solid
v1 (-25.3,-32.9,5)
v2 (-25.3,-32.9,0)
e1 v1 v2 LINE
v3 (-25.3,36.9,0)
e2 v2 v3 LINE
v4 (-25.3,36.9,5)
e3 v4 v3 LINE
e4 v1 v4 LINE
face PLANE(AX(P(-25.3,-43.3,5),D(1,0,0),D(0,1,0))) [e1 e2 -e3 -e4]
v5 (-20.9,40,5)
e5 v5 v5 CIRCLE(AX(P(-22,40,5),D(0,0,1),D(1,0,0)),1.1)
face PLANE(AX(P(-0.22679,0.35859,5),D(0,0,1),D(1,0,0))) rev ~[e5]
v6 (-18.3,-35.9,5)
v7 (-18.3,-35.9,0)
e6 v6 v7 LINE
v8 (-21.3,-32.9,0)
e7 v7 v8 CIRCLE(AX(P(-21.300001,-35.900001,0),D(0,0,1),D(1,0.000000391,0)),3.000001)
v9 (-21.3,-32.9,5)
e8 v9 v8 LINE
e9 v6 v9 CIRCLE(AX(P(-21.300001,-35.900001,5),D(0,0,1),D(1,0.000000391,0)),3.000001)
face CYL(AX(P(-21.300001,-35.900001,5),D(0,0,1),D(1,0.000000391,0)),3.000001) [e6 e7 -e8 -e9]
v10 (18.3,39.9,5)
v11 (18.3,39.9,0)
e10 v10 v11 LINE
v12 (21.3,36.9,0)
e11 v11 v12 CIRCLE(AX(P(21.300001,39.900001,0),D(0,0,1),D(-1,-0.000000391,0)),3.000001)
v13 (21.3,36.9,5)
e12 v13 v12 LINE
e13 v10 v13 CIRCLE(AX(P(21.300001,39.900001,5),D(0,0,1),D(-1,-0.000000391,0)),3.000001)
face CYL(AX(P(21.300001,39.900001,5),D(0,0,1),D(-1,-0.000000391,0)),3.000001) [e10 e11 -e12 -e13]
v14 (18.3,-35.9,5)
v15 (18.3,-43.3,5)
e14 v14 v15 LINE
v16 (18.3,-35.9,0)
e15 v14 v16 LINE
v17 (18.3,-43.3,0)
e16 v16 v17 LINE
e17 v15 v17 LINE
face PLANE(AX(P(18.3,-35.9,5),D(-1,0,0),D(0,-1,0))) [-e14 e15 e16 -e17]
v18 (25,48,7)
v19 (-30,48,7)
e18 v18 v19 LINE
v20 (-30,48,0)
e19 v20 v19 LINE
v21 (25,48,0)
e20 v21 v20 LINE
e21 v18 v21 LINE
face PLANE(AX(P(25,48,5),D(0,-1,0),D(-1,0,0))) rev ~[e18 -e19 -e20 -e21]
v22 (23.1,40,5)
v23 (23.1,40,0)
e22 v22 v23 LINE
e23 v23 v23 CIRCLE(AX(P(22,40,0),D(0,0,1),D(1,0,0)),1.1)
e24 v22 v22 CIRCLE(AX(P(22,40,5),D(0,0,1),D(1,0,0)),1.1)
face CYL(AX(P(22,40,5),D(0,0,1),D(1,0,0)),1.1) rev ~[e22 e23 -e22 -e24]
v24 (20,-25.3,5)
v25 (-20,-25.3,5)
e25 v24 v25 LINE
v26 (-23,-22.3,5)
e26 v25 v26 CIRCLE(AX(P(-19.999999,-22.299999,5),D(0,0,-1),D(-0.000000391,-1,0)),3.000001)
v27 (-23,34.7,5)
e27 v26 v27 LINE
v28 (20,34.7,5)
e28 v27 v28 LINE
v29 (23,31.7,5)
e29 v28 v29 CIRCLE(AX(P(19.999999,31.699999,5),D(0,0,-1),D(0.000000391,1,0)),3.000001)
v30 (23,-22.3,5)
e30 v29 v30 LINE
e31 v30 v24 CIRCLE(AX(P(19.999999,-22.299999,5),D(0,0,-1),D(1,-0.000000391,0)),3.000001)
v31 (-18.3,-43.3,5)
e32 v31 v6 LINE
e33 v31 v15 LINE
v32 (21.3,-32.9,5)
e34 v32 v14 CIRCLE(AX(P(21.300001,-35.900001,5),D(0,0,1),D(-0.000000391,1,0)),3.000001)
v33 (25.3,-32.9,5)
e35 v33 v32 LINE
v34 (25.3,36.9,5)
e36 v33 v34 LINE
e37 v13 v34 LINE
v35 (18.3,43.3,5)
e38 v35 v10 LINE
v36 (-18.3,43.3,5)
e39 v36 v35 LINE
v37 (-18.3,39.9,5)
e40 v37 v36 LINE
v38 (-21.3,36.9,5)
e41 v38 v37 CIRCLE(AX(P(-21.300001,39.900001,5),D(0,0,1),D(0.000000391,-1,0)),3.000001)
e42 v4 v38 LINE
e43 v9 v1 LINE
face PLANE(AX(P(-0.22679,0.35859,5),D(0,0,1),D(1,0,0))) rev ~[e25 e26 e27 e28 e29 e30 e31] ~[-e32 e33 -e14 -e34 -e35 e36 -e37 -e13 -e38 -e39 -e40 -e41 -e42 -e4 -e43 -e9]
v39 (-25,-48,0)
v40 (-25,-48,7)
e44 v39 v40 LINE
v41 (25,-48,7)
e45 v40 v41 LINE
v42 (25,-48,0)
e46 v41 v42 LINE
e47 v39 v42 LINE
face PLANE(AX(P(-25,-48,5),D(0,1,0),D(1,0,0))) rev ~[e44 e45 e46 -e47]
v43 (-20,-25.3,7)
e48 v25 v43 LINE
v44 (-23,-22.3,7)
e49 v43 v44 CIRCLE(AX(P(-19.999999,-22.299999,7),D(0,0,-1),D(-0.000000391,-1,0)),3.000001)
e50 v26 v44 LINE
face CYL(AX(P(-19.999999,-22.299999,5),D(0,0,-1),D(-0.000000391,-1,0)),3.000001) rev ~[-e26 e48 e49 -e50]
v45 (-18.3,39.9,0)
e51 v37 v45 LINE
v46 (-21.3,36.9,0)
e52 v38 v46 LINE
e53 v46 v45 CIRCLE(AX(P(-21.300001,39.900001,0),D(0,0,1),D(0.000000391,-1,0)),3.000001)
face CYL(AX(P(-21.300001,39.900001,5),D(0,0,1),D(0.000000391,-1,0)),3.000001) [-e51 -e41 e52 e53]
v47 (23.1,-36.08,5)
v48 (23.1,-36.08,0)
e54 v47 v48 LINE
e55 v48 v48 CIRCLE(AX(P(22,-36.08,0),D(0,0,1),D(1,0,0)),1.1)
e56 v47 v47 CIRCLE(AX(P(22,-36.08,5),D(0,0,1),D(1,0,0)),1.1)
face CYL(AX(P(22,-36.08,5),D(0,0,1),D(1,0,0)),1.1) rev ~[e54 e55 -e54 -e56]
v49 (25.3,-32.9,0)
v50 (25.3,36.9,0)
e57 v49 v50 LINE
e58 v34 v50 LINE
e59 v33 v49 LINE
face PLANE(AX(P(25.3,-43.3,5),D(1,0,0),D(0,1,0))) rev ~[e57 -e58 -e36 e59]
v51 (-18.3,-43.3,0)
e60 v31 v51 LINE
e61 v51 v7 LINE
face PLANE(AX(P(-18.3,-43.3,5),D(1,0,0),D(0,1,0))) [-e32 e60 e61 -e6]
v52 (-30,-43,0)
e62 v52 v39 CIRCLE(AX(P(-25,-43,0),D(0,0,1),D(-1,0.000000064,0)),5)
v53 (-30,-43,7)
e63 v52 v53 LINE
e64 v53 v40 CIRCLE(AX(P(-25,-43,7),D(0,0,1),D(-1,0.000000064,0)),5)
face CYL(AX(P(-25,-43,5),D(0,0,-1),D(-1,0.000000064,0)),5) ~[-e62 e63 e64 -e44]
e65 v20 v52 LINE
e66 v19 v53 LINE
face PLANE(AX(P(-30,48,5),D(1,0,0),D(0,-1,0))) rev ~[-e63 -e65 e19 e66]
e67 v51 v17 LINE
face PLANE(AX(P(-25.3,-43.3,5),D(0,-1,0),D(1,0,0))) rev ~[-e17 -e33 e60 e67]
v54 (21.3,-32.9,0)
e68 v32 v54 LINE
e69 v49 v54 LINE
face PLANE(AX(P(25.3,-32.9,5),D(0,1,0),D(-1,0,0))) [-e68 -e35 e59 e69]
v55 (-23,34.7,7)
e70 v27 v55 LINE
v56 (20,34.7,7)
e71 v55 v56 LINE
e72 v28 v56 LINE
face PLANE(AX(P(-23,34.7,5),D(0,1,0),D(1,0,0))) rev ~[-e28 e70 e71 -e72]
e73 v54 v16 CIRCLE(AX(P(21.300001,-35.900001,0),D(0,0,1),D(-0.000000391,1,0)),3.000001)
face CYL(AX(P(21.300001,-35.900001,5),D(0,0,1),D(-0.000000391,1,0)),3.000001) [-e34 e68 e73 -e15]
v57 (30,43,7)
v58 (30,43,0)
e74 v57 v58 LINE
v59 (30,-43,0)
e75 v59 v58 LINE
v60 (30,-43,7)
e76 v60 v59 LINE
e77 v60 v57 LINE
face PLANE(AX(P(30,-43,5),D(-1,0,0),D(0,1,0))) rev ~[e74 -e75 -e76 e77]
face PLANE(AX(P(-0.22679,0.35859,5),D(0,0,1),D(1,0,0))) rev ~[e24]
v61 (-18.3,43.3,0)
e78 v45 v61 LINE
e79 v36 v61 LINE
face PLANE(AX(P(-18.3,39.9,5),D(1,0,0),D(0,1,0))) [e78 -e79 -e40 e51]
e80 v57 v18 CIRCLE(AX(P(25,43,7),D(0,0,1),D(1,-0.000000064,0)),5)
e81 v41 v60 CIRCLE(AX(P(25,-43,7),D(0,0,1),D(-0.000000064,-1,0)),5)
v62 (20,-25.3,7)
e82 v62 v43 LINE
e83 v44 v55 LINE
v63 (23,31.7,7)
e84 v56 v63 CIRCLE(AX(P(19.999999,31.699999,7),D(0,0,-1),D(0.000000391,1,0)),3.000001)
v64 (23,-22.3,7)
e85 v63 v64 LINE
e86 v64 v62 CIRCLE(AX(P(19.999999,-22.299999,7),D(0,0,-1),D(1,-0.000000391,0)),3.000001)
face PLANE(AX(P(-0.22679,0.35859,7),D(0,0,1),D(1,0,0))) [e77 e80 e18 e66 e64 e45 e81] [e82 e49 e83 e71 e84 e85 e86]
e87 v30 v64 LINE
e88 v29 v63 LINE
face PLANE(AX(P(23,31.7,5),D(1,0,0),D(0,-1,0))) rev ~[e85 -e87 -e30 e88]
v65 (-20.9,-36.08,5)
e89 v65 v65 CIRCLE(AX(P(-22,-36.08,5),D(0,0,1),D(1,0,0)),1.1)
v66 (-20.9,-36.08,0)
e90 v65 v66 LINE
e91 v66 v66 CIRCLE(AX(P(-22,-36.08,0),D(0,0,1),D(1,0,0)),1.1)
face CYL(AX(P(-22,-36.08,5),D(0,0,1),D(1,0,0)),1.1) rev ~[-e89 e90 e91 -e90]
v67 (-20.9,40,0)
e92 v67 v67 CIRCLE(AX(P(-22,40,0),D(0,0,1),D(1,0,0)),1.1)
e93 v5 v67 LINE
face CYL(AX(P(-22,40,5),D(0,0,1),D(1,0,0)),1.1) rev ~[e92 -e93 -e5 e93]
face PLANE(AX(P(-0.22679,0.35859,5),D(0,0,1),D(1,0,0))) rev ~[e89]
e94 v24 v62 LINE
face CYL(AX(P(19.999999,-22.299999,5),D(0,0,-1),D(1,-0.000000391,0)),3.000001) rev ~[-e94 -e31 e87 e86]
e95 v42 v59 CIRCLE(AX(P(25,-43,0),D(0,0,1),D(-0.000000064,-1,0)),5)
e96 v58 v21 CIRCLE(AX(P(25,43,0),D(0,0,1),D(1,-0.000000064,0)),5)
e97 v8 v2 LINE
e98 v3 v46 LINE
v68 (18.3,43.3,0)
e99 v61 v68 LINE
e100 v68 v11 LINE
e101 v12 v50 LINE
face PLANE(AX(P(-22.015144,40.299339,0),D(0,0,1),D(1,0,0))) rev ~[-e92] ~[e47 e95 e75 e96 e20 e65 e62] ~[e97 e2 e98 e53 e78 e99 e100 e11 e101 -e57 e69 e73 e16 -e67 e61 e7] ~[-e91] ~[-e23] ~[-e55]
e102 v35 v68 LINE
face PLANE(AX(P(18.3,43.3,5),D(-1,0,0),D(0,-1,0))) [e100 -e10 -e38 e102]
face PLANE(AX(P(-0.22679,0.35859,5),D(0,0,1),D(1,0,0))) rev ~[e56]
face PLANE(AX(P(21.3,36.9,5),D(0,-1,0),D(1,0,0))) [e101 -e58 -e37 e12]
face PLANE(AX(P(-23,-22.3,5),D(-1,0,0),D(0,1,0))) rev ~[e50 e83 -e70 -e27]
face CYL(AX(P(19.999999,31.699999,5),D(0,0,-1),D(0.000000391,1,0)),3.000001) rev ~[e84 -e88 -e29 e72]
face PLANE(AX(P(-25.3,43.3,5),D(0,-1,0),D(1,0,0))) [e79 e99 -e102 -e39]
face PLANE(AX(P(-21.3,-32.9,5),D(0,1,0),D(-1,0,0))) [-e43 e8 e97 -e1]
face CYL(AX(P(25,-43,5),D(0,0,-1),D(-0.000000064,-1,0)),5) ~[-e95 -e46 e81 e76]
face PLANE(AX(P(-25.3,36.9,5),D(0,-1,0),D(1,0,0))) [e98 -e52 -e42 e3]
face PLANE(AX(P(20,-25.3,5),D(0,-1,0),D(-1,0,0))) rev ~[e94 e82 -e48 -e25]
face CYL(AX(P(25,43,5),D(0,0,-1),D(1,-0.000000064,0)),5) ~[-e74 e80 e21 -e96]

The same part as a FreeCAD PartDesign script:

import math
import FreeCAD as App
import Part
import Sketcher
from FreeCAD import Vector


def add_polygon(sketch, points):
    """Adds a closed chain of lines whose ends are joined by coincident constraints."""
    first, n = sketch.GeometryCount, len(points)
    for a, b in zip(points, points[1:] + points[:1]):
        sketch.addGeometry(Part.LineSegment(App.Vector(*a, 0), App.Vector(*b, 0)), False)
    for i in range(n):
        sketch.addConstraint(Sketcher.Constraint("Coincident", first + i, 2, first + (i + 1) % n, 1))

doc = App.newDocument("Part")
body = doc.addObject("PartDesign::Body", "Body")

sketch1 = body.newObject("Sketcher::SketchObject", "Sketch")
sketch1.AttachmentSupport = (doc.getObject("XY_Plane"), [""])
sketch1.MapMode = "FlatFace"
sketch1.addGeometry([
    Part.LineSegment(Vector(-25, -48, 0), Vector(25, -48, 0)),
    Part.ArcOfCircle(Part.Circle(Vector(25, -43, 0), Vector(0, 0, 1), 5), math.radians(-90.000004), math.radians(0.000004)),
    Part.LineSegment(Vector(30, -43, 0), Vector(30, 43, 0)),
    Part.ArcOfCircle(Part.Circle(Vector(25, 43, 0), Vector(0, 0, 1), 5), math.radians(-0.000004), math.radians(90.000004)),
    Part.LineSegment(Vector(25, 48, 0), Vector(-30, 48, 0)),
    Part.LineSegment(Vector(-30, 48, 0), Vector(-30, -43, 0)),
    Part.ArcOfCircle(Part.Circle(Vector(-25, -43, 0), Vector(0, 0, 1), 5), math.radians(179.999996), math.radians(270.000004)),
    Part.Circle(Vector(-22, -36.08, 0), Vector(0, 0, 1), 1.5),
    Part.Circle(Vector(22, -36.08, 0), Vector(0, 0, 1), 1.5),
    Part.Circle(Vector(-22, 40, 0), Vector(0, 0, 1), 1.5),
    Part.Circle(Vector(22, 40, 0), Vector(0, 0, 1), 1.5),
], False)
sketch1.addConstraint([
    Sketcher.Constraint("Tangent", 0, 2, 1, 1),
    Sketcher.Constraint("Tangent", 1, 2, 2, 1),
    Sketcher.Constraint("Tangent", 2, 2, 3, 1),
    Sketcher.Constraint("Tangent", 3, 2, 4, 1),
    Sketcher.Constraint("Coincident", 4, 2, 5, 1),
    Sketcher.Constraint("Tangent", 5, 2, 6, 1),
    Sketcher.Constraint("Tangent", 6, 2, 0, 1),
    Sketcher.Constraint("Horizontal", 0),
    Sketcher.Constraint("Vertical", 2),
    Sketcher.Constraint("Horizontal", 4),
    Sketcher.Constraint("Vertical", 5),
    Sketcher.Constraint("Equal", 1, 3),
    Sketcher.Constraint("Equal", 3, 6),
    Sketcher.Constraint("Equal", 7, 8),
    Sketcher.Constraint("Equal", 8, 9),
    Sketcher.Constraint("Equal", 9, 10),
    Sketcher.Constraint("Symmetric", 3, 3, 6, 3, -1, 1),
    Sketcher.Constraint("Symmetric", 7, 3, 8, 3, -2),
    Sketcher.Constraint("Symmetric", 9, 3, 10, 3, -2),
    Sketcher.Constraint("Vertical", 7, 3, 9, 3),
    Sketcher.Constraint("Diameter", 7, 3.0),
    Sketcher.Constraint("Radius", 1, 5.0),
    Sketcher.Constraint("DistanceX", 0, 1, 0, 2, 50.0),
    Sketcher.Constraint("DistanceY", 2, 1, 2, 2, 86.0),
    Sketcher.Constraint("DistanceX", 7, 3, -1, 1, 22.0),
    Sketcher.Constraint("DistanceY", -1, 1, 9, 3, 40.0),
    Sketcher.Constraint("DistanceY", 7, 3, -1, 1, 36.08),
])
pad1 = body.newObject("PartDesign::Pad", "Pad")
pad1.Profile = sketch1
pad1.Length = 5

sketch2 = body.newObject("Sketcher::SketchObject", "Sketch001")
sketch2.AttachmentSupport = (doc.getObject("XY_Plane"), [""])
sketch2.MapMode = "FlatFace"
sketch2.AttachmentOffset = App.Placement(Vector(0, 0, 5), App.Rotation())
add_polygon(sketch2, [(-25.3, 43.3), (-25.3, -43.3), (25.3, -43.3), (25.3, 43.3)])
sketch2.addGeometry(Part.Circle(Vector(-22, -36.08, 0), Vector(0, 0, 1), 1.5), False)
sketch2.addGeometry(Part.Circle(Vector(22, -36.08, 0), Vector(0, 0, 1), 1.5), False)
sketch2.addGeometry(Part.Circle(Vector(-22, 40, 0), Vector(0, 0, 1), 1.5), False)
sketch2.addGeometry(Part.Circle(Vector(22, 40, 0), Vector(0, 0, 1), 1.5), False)
sketch2.addConstraint([
    Sketcher.Constraint("Vertical", 0),
    Sketcher.Constraint("Horizontal", 1),
    Sketcher.Constraint("Vertical", 2),
    Sketcher.Constraint("Horizontal", 3),
    Sketcher.Constraint("Equal", 4, 5),
    Sketcher.Constraint("Equal", 5, 6),
    Sketcher.Constraint("Equal", 6, 7),
    Sketcher.Constraint("Symmetric", 0, 2, 2, 2, -1, 1),
    Sketcher.Constraint("Symmetric", 4, 3, 5, 3, -2),
    Sketcher.Constraint("Symmetric", 6, 3, 7, 3, -2),
    Sketcher.Constraint("Vertical", 4, 3, 6, 3),
    Sketcher.Constraint("Diameter", 4, 3.0),
    Sketcher.Constraint("DistanceX", 1, 1, 1, 2, 50.6),
    Sketcher.Constraint("DistanceY", 0, 2, 0, 1, 86.6),
    Sketcher.Constraint("DistanceX", 4, 3, -1, 1, 22.0),
    Sketcher.Constraint("DistanceY", -1, 1, 6, 3, 40.0),
    Sketcher.Constraint("DistanceY", 4, 3, -1, 1, 36.08),
])
pocket1 = body.newObject("PartDesign::Pocket", "Pocket")
pocket1.Profile = sketch2
pocket1.Length = 5

sketch3 = body.newObject("Sketcher::SketchObject", "Sketch002")
sketch3.AttachmentSupport = (doc.getObject("XY_Plane"), [""])
sketch3.MapMode = "FlatFace"
sketch3.AttachmentOffset = App.Placement(Vector(0, 0, 5), App.Rotation())
sketch3.addGeometry([
    Part.LineSegment(Vector(-18.3, 43.3, 0), Vector(-25.3, 43.3, 0)),
    Part.LineSegment(Vector(-25.3, 43.3, 0), Vector(-25.3, 36.9, 0)),
    Part.LineSegment(Vector(-25.3, 36.9, 0), Vector(-21.3, 36.9, 0)),
    Part.ArcOfCircle(Part.Circle(Vector(-21.300001, 39.900001, 0), Vector(0, 0, 1), 3.000001), math.radians(-89.999978), math.radians(-0.000022)),
    Part.LineSegment(Vector(-18.3, 39.9, 0), Vector(-18.3, 43.3, 0)),
    Part.Circle(Vector(-22, 40, 0), Vector(0, 0, 1), 1.1),
    Part.LineSegment(Vector(25.3, 36.9, 0), Vector(25.3, 43.3, 0)),
    Part.LineSegment(Vector(25.3, 43.3, 0), Vector(18.3, 43.3, 0)),
    Part.LineSegment(Vector(18.3, 43.3, 0), Vector(18.3, 39.9, 0)),
    Part.ArcOfCircle(Part.Circle(Vector(21.300001, 39.900001, 0), Vector(0, 0, 1), 3.000001), math.radians(-179.999978), math.radians(-90.000022)),
    Part.LineSegment(Vector(21.3, 36.9, 0), Vector(25.3, 36.9, 0)),
    Part.Circle(Vector(22, 40, 0), Vector(0, 0, 1), 1.1),
    Part.LineSegment(Vector(18.3, -43.3, 0), Vector(25.3, -43.3, 0)),
    Part.LineSegment(Vector(25.3, -43.3, 0), Vector(25.3, -32.9, 0)),
    Part.LineSegment(Vector(25.3, -32.9, 0), Vector(21.3, -32.9, 0)),
    Part.ArcOfCircle(Part.Circle(Vector(21.300001, -35.900001, 0), Vector(0, 0, 1), 3.000001), math.radians(90.000022), math.radians(179.999978)),
    Part.LineSegment(Vector(18.3, -35.9, 0), Vector(18.3, -43.3, 0)),
    Part.Circle(Vector(22, -36.08, 0), Vector(0, 0, 1), 1.1),
    Part.LineSegment(Vector(-25.3, -32.9, 0), Vector(-25.3, -43.3, 0)),
    Part.LineSegment(Vector(-25.3, -43.3, 0), Vector(-18.3, -43.3, 0)),
    Part.LineSegment(Vector(-18.3, -43.3, 0), Vector(-18.3, -35.9, 0)),
    Part.ArcOfCircle(Part.Circle(Vector(-21.300001, -35.900001, 0), Vector(0, 0, 1), 3.000001), math.radians(0.000022), math.radians(89.999978)),
    Part.LineSegment(Vector(-21.3, -32.9, 0), Vector(-25.3, -32.9, 0)),
    Part.Circle(Vector(-22, -36.08, 0), Vector(0, 0, 1), 1.1),
], False)
sketch3.addConstraint([
    Sketcher.Constraint("Coincident", 0, 2, 1, 1),
    Sketcher.Constraint("Coincident", 1, 2, 2, 1),
    Sketcher.Constraint("Tangent", 2, 2, 3, 1),
    Sketcher.Constraint("Tangent", 3, 2, 4, 1),
    Sketcher.Constraint("Coincident", 4, 2, 0, 1),
    Sketcher.Constraint("Coincident", 6, 2, 7, 1),
    Sketcher.Constraint("Coincident", 7, 2, 8, 1),
    Sketcher.Constraint("Tangent", 8, 2, 9, 1),
    Sketcher.Constraint("Tangent", 9, 2, 10, 1),
    Sketcher.Constraint("Coincident", 10, 2, 6, 1),
    Sketcher.Constraint("Coincident", 12, 2, 13, 1),
    Sketcher.Constraint("Coincident", 13, 2, 14, 1),
    Sketcher.Constraint("Tangent", 14, 2, 15, 1),
    Sketcher.Constraint("Tangent", 15, 2, 16, 1),
    Sketcher.Constraint("Coincident", 16, 2, 12, 1),
    Sketcher.Constraint("Coincident", 18, 2, 19, 1),
    Sketcher.Constraint("Coincident", 19, 2, 20, 1),
    Sketcher.Constraint("Tangent", 20, 2, 21, 1),
    Sketcher.Constraint("Tangent", 21, 2, 22, 1),
    Sketcher.Constraint("Coincident", 22, 2, 18, 1),
    Sketcher.Constraint("Horizontal", 0),
    Sketcher.Constraint("Vertical", 1),
    Sketcher.Constraint("Horizontal", 2),
    Sketcher.Constraint("Vertical", 4),
    Sketcher.Constraint("Vertical", 6),
    Sketcher.Constraint("Horizontal", 7),
    Sketcher.Constraint("Vertical", 8),
    Sketcher.Constraint("Horizontal", 10),
    Sketcher.Constraint("Horizontal", 12),
    Sketcher.Constraint("Vertical", 13),
    Sketcher.Constraint("Horizontal", 14),
    Sketcher.Constraint("Vertical", 16),
    Sketcher.Constraint("Vertical", 18),
    Sketcher.Constraint("Horizontal", 19),
    Sketcher.Constraint("Vertical", 20),
    Sketcher.Constraint("Horizontal", 22),
    Sketcher.Constraint("Equal", 3, 9),
    Sketcher.Constraint("Equal", 5, 11),
    Sketcher.Constraint("Equal", 9, 15),
    Sketcher.Constraint("Equal", 11, 17),
    Sketcher.Constraint("Equal", 15, 21),
    Sketcher.Constraint("Equal", 17, 23),
    Sketcher.Constraint("Symmetric", 0, 2, 12, 2, -1, 1),
    Sketcher.Constraint("Symmetric", 6, 2, 18, 2, -1, 1),
    Sketcher.Constraint("Symmetric", 3, 3, 9, 3, -2),
    Sketcher.Constraint("Symmetric", 5, 3, 11, 3, -2),
    Sketcher.Constraint("Symmetric", 15, 3, 21, 3, -2),
    Sketcher.Constraint("Symmetric", 17, 3, 23, 3, -2),
    Sketcher.Constraint("Symmetric", 0, 2, 6, 2, -2),
    Sketcher.Constraint("Vertical", 9, 3, 15, 3),
    Sketcher.Constraint("Vertical", 11, 3, 17, 3),
    Sketcher.Constraint("Radius", 3, 3.000001),
    Sketcher.Constraint("Diameter", 5, 2.2),
    Sketcher.Constraint("DistanceX", 0, 2, 0, 1, 7.0),
    Sketcher.Constraint("DistanceY", 1, 2, 1, 1, 6.4),
    Sketcher.Constraint("DistanceY", 13, 1, 13, 2, 10.4),
    Sketcher.Constraint("DistanceX", 5, 3, -1, 1, 22.0),
    Sketcher.Constraint("DistanceY", -1, 1, 5, 3, 40.0),
    Sketcher.Constraint("DistanceX", 3, 3, -1, 1, 21.300001),
    Sketcher.Constraint("DistanceY", -1, 1, 3, 3, 39.900001),
    Sketcher.Constraint("DistanceY", 17, 3, -1, 1, 36.08),
])
pad2 = body.newObject("PartDesign::Pad", "Pad001")
pad2.Profile = sketch3
pad2.Length = 5
pad2.Reversed = True

sketch4 = body.newObject("Sketcher::SketchObject", "Sketch003")
sketch4.AttachmentSupport = (doc.getObject("XY_Plane"), [""])
sketch4.MapMode = "FlatFace"
sketch4.AttachmentOffset = App.Placement(Vector(0, 0, 5), App.Rotation())
sketch4.addGeometry([
    Part.LineSegment(Vector(25, 48, 0), Vector(-30, 48, 0)),
    Part.LineSegment(Vector(-30, 48, 0), Vector(-30, -43, 0)),
    Part.ArcOfCircle(Part.Circle(Vector(-25, -43, 0), Vector(0, 0, 1), 5), math.radians(179.999996), math.radians(270.000004)),
    Part.LineSegment(Vector(-25, -48, 0), Vector(25, -48, 0)),
    Part.ArcOfCircle(Part.Circle(Vector(25, -43, 0), Vector(0, 0, 1), 5), math.radians(-90.000004), math.radians(0.000004)),
    Part.LineSegment(Vector(30, -43, 0), Vector(30, 43, 0)),
    Part.ArcOfCircle(Part.Circle(Vector(25, 43, 0), Vector(0, 0, 1), 5), math.radians(-0.000004), math.radians(90.000004)),
    Part.LineSegment(Vector(-23, -22.3, 0), Vector(-23, 34.7, 0)),
    Part.LineSegment(Vector(-23, 34.7, 0), Vector(20, 34.7, 0)),
    Part.ArcOfCircle(Part.Circle(Vector(19.999999, 31.699999, 0), Vector(0, 0, 1), 3.000001), math.radians(0.000022), math.radians(89.999978)),
    Part.LineSegment(Vector(23, 31.7, 0), Vector(23, -22.3, 0)),
    Part.ArcOfCircle(Part.Circle(Vector(19.999999, -22.299999, 0), Vector(0, 0, 1), 3.000001), math.radians(-89.999978), math.radians(-0.000022)),
    Part.LineSegment(Vector(20, -25.3, 0), Vector(-20, -25.3, 0)),
    Part.ArcOfCircle(Part.Circle(Vector(-19.999999, -22.299999, 0), Vector(0, 0, 1), 3.000001), math.radians(-179.999978), math.radians(-90.000022)),
], False)
sketch4.addConstraint([
    Sketcher.Constraint("Coincident", 0, 2, 1, 1),
    Sketcher.Constraint("Tangent", 1, 2, 2, 1),
    Sketcher.Constraint("Tangent", 2, 2, 3, 1),
    Sketcher.Constraint("Tangent", 3, 2, 4, 1),
    Sketcher.Constraint("Tangent", 4, 2, 5, 1),
    Sketcher.Constraint("Tangent", 5, 2, 6, 1),
    Sketcher.Constraint("Tangent", 6, 2, 0, 1),
    Sketcher.Constraint("Coincident", 7, 2, 8, 1),
    Sketcher.Constraint("Tangent", 8, 2, 9, 2),
    Sketcher.Constraint("Tangent", 9, 1, 10, 1),
    Sketcher.Constraint("Tangent", 10, 2, 11, 2),
    Sketcher.Constraint("Tangent", 11, 1, 12, 1),
    Sketcher.Constraint("Tangent", 12, 2, 13, 2),
    Sketcher.Constraint("Tangent", 13, 1, 7, 1),
    Sketcher.Constraint("Horizontal", 0),
    Sketcher.Constraint("Vertical", 1),
    Sketcher.Constraint("Horizontal", 3),
    Sketcher.Constraint("Vertical", 5),
    Sketcher.Constraint("Vertical", 7),
    Sketcher.Constraint("Horizontal", 8),
    Sketcher.Constraint("Vertical", 10),
    Sketcher.Constraint("Horizontal", 12),
    Sketcher.Constraint("Equal", 2, 4),
    Sketcher.Constraint("Equal", 4, 6),
    Sketcher.Constraint("Equal", 9, 11),
    Sketcher.Constraint("Equal", 11, 13),
    Sketcher.Constraint("Symmetric", 2, 3, 6, 3, -1, 1),
    Sketcher.Constraint("Radius", 2, 5.0),
    Sketcher.Constraint("Radius", 9, 3.000001),
    Sketcher.Constraint("DistanceX", 0, 2, 0, 1, 55.0),
    Sketcher.Constraint("DistanceX", 8, 1, 8, 2, 43.0),
    Sketcher.Constraint("DistanceY", 1, 2, 1, 1, 91.0),
    Sketcher.Constraint("DistanceY", 7, 1, 7, 2, 57.0),
    Sketcher.Constraint("DistanceX", -1, 1, 9, 3, 19.999999),
    Sketcher.Constraint("DistanceY", -1, 1, 9, 3, 31.699999),
])
pad3 = body.newObject("PartDesign::Pad", "Pad002")
pad3.Profile = sketch4
pad3.Length = 2

doc.recompute()
